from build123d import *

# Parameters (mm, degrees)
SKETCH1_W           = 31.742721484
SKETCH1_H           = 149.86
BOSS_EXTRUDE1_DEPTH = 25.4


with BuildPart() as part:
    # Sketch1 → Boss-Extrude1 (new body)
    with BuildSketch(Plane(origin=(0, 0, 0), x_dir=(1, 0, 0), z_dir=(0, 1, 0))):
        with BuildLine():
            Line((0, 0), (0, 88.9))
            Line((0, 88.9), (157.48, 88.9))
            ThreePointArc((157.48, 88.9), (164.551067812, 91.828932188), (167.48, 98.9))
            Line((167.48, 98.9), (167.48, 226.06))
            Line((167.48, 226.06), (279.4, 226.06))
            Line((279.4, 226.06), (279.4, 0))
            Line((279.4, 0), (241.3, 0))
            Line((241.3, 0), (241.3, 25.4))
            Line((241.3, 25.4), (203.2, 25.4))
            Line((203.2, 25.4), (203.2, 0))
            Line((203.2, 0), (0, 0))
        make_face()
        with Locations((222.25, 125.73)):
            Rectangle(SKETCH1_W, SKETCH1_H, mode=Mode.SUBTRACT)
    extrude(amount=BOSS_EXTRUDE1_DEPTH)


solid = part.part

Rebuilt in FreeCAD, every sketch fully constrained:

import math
import FreeCAD as App
import Part
import Sketcher
Q = App.Units.Quantity


def add_polygon(sketch, points):
    """Adds a closed chain of lines whose ends are joined by coincident constraints."""
    first, n = sketch.GeometryCount, len(points)
    for a, b in zip(points, points[1:] + points[:1]):
        sketch.addGeometry(Part.LineSegment(App.Vector(*a, 0), App.Vector(*b, 0)), False)
    for i in range(n):
        sketch.addConstraint(Sketcher.Constraint("Coincident", first + i, 2, first + (i + 1) % n, 1))

doc = App.newDocument("Part")
params = doc.addObject("Spreadsheet::Sheet", "Params")
for row, (alias, value) in enumerate([
    ("sketch1_width", "8 in"),
    ("sketch1_height", "1 in"),
    ("sketch1_width2", "1.5 in"),
    ("sketch1_width3", "6.2 in"),
    ("sketch1_height2", "3.5 in"),
    ("pad1_length", "1 in"),
], start=1):
    params.set(f"A{row}", alias)
    params.set(f"B{row}", "=" + value)
    params.setAlias(f"B{row}", alias)

body = doc.addObject("PartDesign::Body", "Body")

# Sketch on XZ plane
sketch1 = body.newObject("Sketcher::SketchObject", "Sketch")
sketch1.AttachmentSupport = (doc.getObject("XZ_Plane"), [""])
sketch1.MapMode = "FlatFace"
sketch1.addGeometry(Part.LineSegment(App.Vector(0, -89, 0), App.Vector(0, 0, 0)), False)  # 0
sketch1.addGeometry(Part.LineSegment(App.Vector(0, 0, 0), App.Vector(203, 0, 0)), False)  # 1
sketch1.addGeometry(Part.LineSegment(App.Vector(203, 0, 0), App.Vector(203, -25, 0)), False)  # 2
sketch1.addGeometry(Part.LineSegment(App.Vector(203, -25, 0), App.Vector(241, -25, 0)), False)  # 3
sketch1.addGeometry(Part.LineSegment(App.Vector(241, -25, 0), App.Vector(241, 0, 0)), False)  # 4
sketch1.addGeometry(Part.LineSegment(App.Vector(241, 0, 0), App.Vector(279, 0, 0)), False)  # 5
sketch1.addGeometry(Part.LineSegment(App.Vector(279, 0, 0), App.Vector(279, -226, 0)), False)  # 6
sketch1.addGeometry(Part.LineSegment(App.Vector(279, -226, 0), App.Vector(167, -226, 0)), False)  # 7
sketch1.addGeometry(Part.LineSegment(App.Vector(167, -226, 0), App.Vector(167, -99, 0)), False)  # 8
sketch1.addGeometry(Part.ArcOfCircle(Part.Circle(App.Vector(157, -99, 0), App.Vector(0, 0, 1), 10), math.radians(0), math.radians(90)), False)  # 9
sketch1.addGeometry(Part.LineSegment(App.Vector(157, -89, 0), App.Vector(0, -89, 0)), False)  # 10
add_polygon(sketch1, [(206, -51), (206, -201), (238, -201), (238, -51)])  # lines 11-14
sketch1.addConstraint(Sketcher.Constraint("Coincident", 0, 2, 1, 1))
sketch1.addConstraint(Sketcher.Constraint("Coincident", 1, 2, 2, 1))
sketch1.addConstraint(Sketcher.Constraint("Coincident", 2, 2, 3, 1))
sketch1.addConstraint(Sketcher.Constraint("Coincident", 3, 2, 4, 1))
sketch1.addConstraint(Sketcher.Constraint("Coincident", 4, 2, 5, 1))
sketch1.addConstraint(Sketcher.Constraint("Coincident", 5, 2, 6, 1))
sketch1.addConstraint(Sketcher.Constraint("Coincident", 6, 2, 7, 1))
sketch1.addConstraint(Sketcher.Constraint("Coincident", 7, 2, 8, 1))
sketch1.addConstraint(Sketcher.Constraint("Tangent", 8, 2, 9, 1))
sketch1.addConstraint(Sketcher.Constraint("Tangent", 9, 2, 10, 1))
sketch1.addConstraint(Sketcher.Constraint("Coincident", 10, 2, 0, 1))
sketch1.addConstraint(Sketcher.Constraint("Vertical", 0))
sketch1.addConstraint(Sketcher.Constraint("Horizontal", 1))
sketch1.addConstraint(Sketcher.Constraint("Vertical", 2))
sketch1.addConstraint(Sketcher.Constraint("Horizontal", 3))
sketch1.addConstraint(Sketcher.Constraint("Vertical", 4))
sketch1.addConstraint(Sketcher.Constraint("Horizontal", 5))
sketch1.addConstraint(Sketcher.Constraint("Vertical", 6))
sketch1.addConstraint(Sketcher.Constraint("Horizontal", 7))
sketch1.addConstraint(Sketcher.Constraint("Vertical", 8))
sketch1.addConstraint(Sketcher.Constraint("Horizontal", 10))
sketch1.addConstraint(Sketcher.Constraint("Vertical", 11))
sketch1.addConstraint(Sketcher.Constraint("Horizontal", 12))
sketch1.addConstraint(Sketcher.Constraint("Vertical", 13))
sketch1.addConstraint(Sketcher.Constraint("Horizontal", 14))
sketch1.addConstraint(Sketcher.Constraint("Coincident", 0, 2, -1, 1))
sketch1.addConstraint(Sketcher.Constraint("PointOnObject", 4, 2, -1))
sketch1.addConstraint(Sketcher.Constraint("Equal", 3, 5))
sketch1.addConstraint(Sketcher.Constraint("DistanceX", 1, 1, 1, 2, Q("8 in")))
sketch1.addConstraint(Sketcher.Constraint("DistanceY", 2, 2, 2, 1, Q("1 in")))
sketch1.addConstraint(Sketcher.Constraint("DistanceX", 3, 1, 3, 2, Q("1.5 in")))
sketch1.addConstraint(Sketcher.Constraint("DistanceX", 10, 2, 10, 1, Q("6.2 in")))
sketch1.addConstraint(Sketcher.Constraint("DistanceY", 0, 1, 0, 2, Q("3.5 in")))
sketch1.addConstraint(Sketcher.Constraint("DistanceY", 6, 2, 6, 1, Q("8.9 in")))
sketch1.addConstraint(Sketcher.Constraint("DistanceY", 11, 2, 11, 1, Q("5.9 in")))
sketch1.addConstraint(Sketcher.Constraint("DistanceY", 13, 2, -1, 1, Q("2 in")))
sketch1.addConstraint(Sketcher.Constraint("Radius", 9, Q("10 mm")))
sketch1.addConstraint(Sketcher.Constraint("DistanceX", 12, 1, 12, 2, Q("31.742721 mm")))
sketch1.addConstraint(Sketcher.Constraint("DistanceX", -1, 1, 11, 2, Q("206.378639 mm")))
sketch1.setExpression("Constraints[32]", "Params.sketch1_width")
sketch1.setExpression("Constraints[33]", "Params.sketch1_height")
sketch1.setExpression("Constraints[34]", "Params.sketch1_width2")
sketch1.setExpression("Constraints[35]", "Params.sketch1_width3")
sketch1.setExpression("Constraints[36]", "Params.sketch1_height2")
pad1 = body.newObject("PartDesign::Pad", "Pad")
pad1.Profile = sketch1
pad1.setExpression("Length", "Params.pad1_length")
pad1.Reversed = True

doc.recompute()
